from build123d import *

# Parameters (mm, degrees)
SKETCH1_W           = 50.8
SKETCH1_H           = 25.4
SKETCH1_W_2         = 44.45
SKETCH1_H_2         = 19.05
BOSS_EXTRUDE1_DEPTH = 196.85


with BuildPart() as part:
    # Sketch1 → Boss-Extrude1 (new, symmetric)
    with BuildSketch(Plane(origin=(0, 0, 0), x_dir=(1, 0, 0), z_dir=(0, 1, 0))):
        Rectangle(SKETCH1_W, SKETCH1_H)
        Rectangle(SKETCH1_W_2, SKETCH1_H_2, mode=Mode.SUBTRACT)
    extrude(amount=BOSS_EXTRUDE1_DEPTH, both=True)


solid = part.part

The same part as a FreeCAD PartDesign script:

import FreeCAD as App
import Part
import Sketcher
Q = App.Units.Quantity

doc = App.newDocument("Part")
body = doc.addObject("PartDesign::Body", "Body")

# Sketch on XZ plane
sketch1 = doc.addObject("Sketcher::SketchObject", "Sketch")
body.addObject(sketch1)
sketch1.AttachmentSupport = (doc.XZ_Plane, [""])
sketch1.MapMode = "FlatFace"
sketch1.addGeometry(Part.LineSegment(App.Vector(-25.4, -12.7, 0), App.Vector(-25.4, 12.7, 0)), False)
sketch1.addGeometry(Part.LineSegment(App.Vector(-25.4, 12.7, 0), App.Vector(25.4, 12.7, 0)), False)
sketch1.addGeometry(Part.LineSegment(App.Vector(25.4, 12.7, 0), App.Vector(25.4, -12.7, 0)), False)
sketch1.addGeometry(Part.LineSegment(App.Vector(25.4, -12.7, 0), App.Vector(-25.4, -12.7, 0)), False)
sketch1.addGeometry(Part.LineSegment(App.Vector(22.225, 9.525, 0), App.Vector(-22.225, 9.525, 0)), False)
sketch1.addGeometry(Part.LineSegment(App.Vector(-22.225, 9.525, 0), App.Vector(-22.225, -9.525, 0)), False)
sketch1.addGeometry(Part.LineSegment(App.Vector(-22.225, -9.525, 0), App.Vector(22.225, -9.525, 0)), False)
sketch1.addGeometry(Part.LineSegment(App.Vector(22.225, -9.525, 0), App.Vector(22.225, 9.525, 0)), False)
sketch1.addConstraint(Sketcher.Constraint("Coincident", 0, 2, 1, 1))
sketch1.addConstraint(Sketcher.Constraint("Coincident", 1, 2, 2, 1))
sketch1.addConstraint(Sketcher.Constraint("Coincident", 2, 2, 3, 1))
sketch1.addConstraint(Sketcher.Constraint("Coincident", 3, 2, 0, 1))
sketch1.addConstraint(Sketcher.Constraint("Coincident", 4, 2, 5, 1))
sketch1.addConstraint(Sketcher.Constraint("Coincident", 5, 2, 6, 1))
sketch1.addConstraint(Sketcher.Constraint("Coincident", 6, 2, 7, 1))
sketch1.addConstraint(Sketcher.Constraint("Coincident", 7, 2, 4, 1))
sketch1.addConstraint(Sketcher.Constraint("Vertical", 0))
sketch1.addConstraint(Sketcher.Constraint("Horizontal", 1))
sketch1.addConstraint(Sketcher.Constraint("Vertical", 2))
sketch1.addConstraint(Sketcher.Constraint("Horizontal", 3))
sketch1.addConstraint(Sketcher.Constraint("Horizontal", 4))
sketch1.addConstraint(Sketcher.Constraint("Vertical", 5))
sketch1.addConstraint(Sketcher.Constraint("Horizontal", 6))
sketch1.addConstraint(Sketcher.Constraint("Vertical", 7))
sketch1.addConstraint(Sketcher.Constraint("Symmetric", 0, 2, 2, 2, -1, 1))
sketch1.addConstraint(Sketcher.Constraint("Symmetric", 4, 2, 6, 2, -1, 1))
sketch1.addConstraint(Sketcher.Constraint("DistanceX", 1, 1, 1, 2, Q("2 in")))
sketch1.addConstraint(Sketcher.Constraint("DistanceY", 0, 1, 0, 2, Q("1 in")))
sketch1.addConstraint(Sketcher.Constraint("DistanceX", 4, 2, 4, 1, Q("1.75 in")))
sketch1.addConstraint(Sketcher.Constraint("DistanceY", 5, 2, 5, 1, Q("0.75 in")))
pad1 = doc.addObject("PartDesign::Pad", "Pad")
body.addObject(pad1)
pad1.Profile = sketch1
pad1.Length = Q("15.5 in")
pad1.Midplane = True

doc.recompute()
